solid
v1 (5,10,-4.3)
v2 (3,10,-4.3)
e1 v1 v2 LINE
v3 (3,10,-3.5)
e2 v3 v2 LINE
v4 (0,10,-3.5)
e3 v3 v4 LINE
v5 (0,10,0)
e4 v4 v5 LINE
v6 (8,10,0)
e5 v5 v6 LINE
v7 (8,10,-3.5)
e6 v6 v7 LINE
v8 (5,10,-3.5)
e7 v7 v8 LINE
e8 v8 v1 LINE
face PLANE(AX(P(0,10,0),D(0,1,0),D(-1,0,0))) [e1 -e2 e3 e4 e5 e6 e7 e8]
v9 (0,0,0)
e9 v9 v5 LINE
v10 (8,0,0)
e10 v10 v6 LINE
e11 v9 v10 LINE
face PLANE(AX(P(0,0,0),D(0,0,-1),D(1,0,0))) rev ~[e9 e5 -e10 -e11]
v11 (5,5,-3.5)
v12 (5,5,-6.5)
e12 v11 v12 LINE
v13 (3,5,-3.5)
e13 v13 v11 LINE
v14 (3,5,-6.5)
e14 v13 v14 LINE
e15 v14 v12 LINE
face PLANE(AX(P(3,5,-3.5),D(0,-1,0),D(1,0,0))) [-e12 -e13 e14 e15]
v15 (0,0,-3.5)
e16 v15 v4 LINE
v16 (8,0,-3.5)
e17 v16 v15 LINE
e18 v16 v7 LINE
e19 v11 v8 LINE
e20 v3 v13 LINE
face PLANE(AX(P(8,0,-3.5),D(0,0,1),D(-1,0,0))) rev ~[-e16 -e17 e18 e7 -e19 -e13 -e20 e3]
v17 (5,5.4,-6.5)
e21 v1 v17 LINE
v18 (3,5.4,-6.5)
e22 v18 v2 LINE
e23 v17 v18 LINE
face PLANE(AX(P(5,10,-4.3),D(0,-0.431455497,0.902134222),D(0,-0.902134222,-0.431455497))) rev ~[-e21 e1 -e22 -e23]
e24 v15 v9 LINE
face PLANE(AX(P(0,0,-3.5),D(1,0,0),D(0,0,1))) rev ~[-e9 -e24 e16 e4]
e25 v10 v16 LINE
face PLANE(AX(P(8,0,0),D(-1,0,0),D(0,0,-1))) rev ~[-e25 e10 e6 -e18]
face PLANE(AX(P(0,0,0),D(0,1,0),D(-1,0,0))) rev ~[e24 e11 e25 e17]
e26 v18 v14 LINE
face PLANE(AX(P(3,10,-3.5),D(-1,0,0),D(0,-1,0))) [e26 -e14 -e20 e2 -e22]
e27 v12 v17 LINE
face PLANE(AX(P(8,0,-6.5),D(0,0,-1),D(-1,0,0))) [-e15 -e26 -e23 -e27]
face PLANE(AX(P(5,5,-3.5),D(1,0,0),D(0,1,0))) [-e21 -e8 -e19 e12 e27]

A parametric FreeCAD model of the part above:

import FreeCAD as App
import Part
import Sketcher
Q = App.Units.Quantity

doc = App.newDocument("Part")
body = doc.addObject("PartDesign::Body", "Body")

sketch1 = doc.addObject("Sketcher::SketchObject", "Sketch")
body.addObject(sketch1)
sketch1.AttachmentSupport = (doc.XZ_Plane, [""])
sketch1.MapMode = "FlatFace"
sketch1.addGeometry([
    Part.LineSegment(App.Vector(0, -3.5, 0), App.Vector(0, 0, 0)),
    Part.LineSegment(App.Vector(0, 0, 0), App.Vector(8, 0, 0)),
    Part.LineSegment(App.Vector(8, 0, 0), App.Vector(8, -3.5, 0)),
    Part.LineSegment(App.Vector(8, -3.5, 0), App.Vector(0, -3.5, 0)),
], False)
sketch1.addConstraint([
    Sketcher.Constraint("Coincident", 0, 2, 1, 1),
    Sketcher.Constraint("Coincident", 1, 2, 2, 1),
    Sketcher.Constraint("Coincident", 2, 2, 3, 1),
    Sketcher.Constraint("Coincident", 3, 2, 0, 1),
    Sketcher.Constraint("Vertical", 0),
    Sketcher.Constraint("Horizontal", 1),
    Sketcher.Constraint("Vertical", 2),
    Sketcher.Constraint("Horizontal", 3),
    Sketcher.Constraint("Coincident", 0, 2, -1, 1),
    Sketcher.Constraint("DistanceX", 1, 1, 1, 2, Q("8 mm")),
    Sketcher.Constraint("DistanceY", 0, 1, 0, 2, Q("3.5 mm")),
])
pad1 = doc.addObject("PartDesign::Pad", "Pad")
body.addObject(pad1)
pad1.Profile = sketch1
pad1.Length = 10
pad1.Reversed = True

sketch2 = doc.addObject("Sketcher::SketchObject", "Sketch001")
body.addObject(sketch2)
sketch2.AttachmentSupport = (doc.XY_Plane, [""])
sketch2.MapMode = "FlatFace"
sketch2.AttachmentOffset = App.Placement(App.Vector(0, 0, -3.5), App.Rotation())
sketch2.addGeometry([
    Part.LineSegment(App.Vector(3, 10, 0), App.Vector(5, 10, 0)),
    Part.LineSegment(App.Vector(5, 10, 0), App.Vector(5, 5, 0)),
    Part.LineSegment(App.Vector(5, 5, 0), App.Vector(3, 5, 0)),
    Part.LineSegment(App.Vector(3, 5, 0), App.Vector(3, 10, 0)),
], False)
sketch2.addConstraint([
    Sketcher.Constraint("Coincident", 0, 2, 1, 1),
    Sketcher.Constraint("Coincident", 1, 2, 2, 1),
    Sketcher.Constraint("Coincident", 2, 2, 3, 1),
    Sketcher.Constraint("Coincident", 3, 2, 0, 1),
    Sketcher.Constraint("Horizontal", 0),
    Sketcher.Constraint("Vertical", 1),
    Sketcher.Constraint("Horizontal", 2),
    Sketcher.Constraint("Vertical", 3),
    Sketcher.Constraint("DistanceX", 0, 1, 0, 2, Q("2 mm")),
    Sketcher.Constraint("DistanceY", 1, 2, 1, 1, Q("5 mm")),
    Sketcher.Constraint("DistanceX", -1, 1, 0, 2, Q("5 mm")),
    Sketcher.Constraint("DistanceY", -1, 1, 1, 2, Q("5 mm")),
])
pad2 = doc.addObject("PartDesign::Pad", "Pad001")
body.addObject(pad2)
pad2.Profile = sketch2
pad2.Length = 3
pad2.Reversed = True

sketch3 = doc.addObject("Sketcher::SketchObject", "Sketch002")
body.addObject(sketch3)
sketch3.AttachmentSupport = (doc.YZ_Plane, [""])
sketch3.MapMode = "FlatFace"
sketch3.AttachmentOffset = App.Placement(App.Vector(0, 0, 5), App.Rotation())
sketch3.addGeometry([
    Part.LineSegment(App.Vector(10, -6.5, 0), App.Vector(10, -4.3, 0)),
    Part.LineSegment(App.Vector(10, -4.3, 0), App.Vector(5.4, -6.5, 0)),
    Part.LineSegment(App.Vector(5.4, -6.5, 0), App.Vector(10, -6.5, 0)),
], False)
sketch3.addConstraint([
    Sketcher.Constraint("Coincident", 0, 2, 1, 1),
    Sketcher.Constraint("Coincident", 1, 2, 2, 1),
    Sketcher.Constraint("Coincident", 2, 2, 0, 1),
    Sketcher.Constraint("Vertical", 0),
    Sketcher.Constraint("Horizontal", 2),
    Sketcher.Constraint("DistanceX", 2, 1, 2, 2, Q("4.6 mm")),
    Sketcher.Constraint("DistanceY", 0, 1, 0, 2, Q("2.2 mm")),
    Sketcher.Constraint("DistanceX", -1, 1, 0, 2, Q("10 mm")),
    Sketcher.Constraint("DistanceY", 0, 2, -1, 1, Q("4.3 mm")),
])
pocket1 = doc.addObject("PartDesign::Pocket", "Pocket")
body.addObject(pocket1)
pocket1.Profile = sketch3
pocket1.Type = "ThroughAll"

doc.recompute()
